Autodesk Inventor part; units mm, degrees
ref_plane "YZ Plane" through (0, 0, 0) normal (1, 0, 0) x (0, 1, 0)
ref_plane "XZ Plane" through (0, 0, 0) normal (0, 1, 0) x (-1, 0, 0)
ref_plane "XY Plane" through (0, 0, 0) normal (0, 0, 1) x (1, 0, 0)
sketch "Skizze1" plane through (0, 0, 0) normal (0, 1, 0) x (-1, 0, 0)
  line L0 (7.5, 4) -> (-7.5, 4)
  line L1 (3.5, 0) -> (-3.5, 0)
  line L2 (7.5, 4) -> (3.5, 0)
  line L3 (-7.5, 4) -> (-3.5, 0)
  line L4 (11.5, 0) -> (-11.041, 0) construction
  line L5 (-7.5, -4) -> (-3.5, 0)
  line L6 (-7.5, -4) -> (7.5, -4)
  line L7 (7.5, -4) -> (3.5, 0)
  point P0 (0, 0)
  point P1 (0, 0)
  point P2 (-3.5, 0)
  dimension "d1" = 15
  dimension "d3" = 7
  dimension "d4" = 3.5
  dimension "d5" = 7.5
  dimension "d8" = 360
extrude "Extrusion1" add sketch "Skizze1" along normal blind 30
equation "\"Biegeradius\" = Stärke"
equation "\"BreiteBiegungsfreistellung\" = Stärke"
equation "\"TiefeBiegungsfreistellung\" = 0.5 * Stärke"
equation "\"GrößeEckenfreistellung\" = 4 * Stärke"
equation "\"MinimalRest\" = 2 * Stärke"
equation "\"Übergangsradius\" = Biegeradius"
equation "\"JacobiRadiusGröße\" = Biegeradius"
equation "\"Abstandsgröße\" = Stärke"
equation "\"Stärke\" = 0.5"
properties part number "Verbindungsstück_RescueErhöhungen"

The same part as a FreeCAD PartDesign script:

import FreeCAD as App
import Part
import Sketcher

V = App.Vector

doc = App.newDocument("Part")
params = doc.addObject("Spreadsheet::Sheet", "Params")
for row, (alias, value) in enumerate([
    ("sketch1_width", "15 mm"),
    ("pad1_length", "30 mm"),
], start=1):
    params.set(f"A{row}", alias)
    params.set(f"B{row}", "=" + value)
    params.setAlias(f"B{row}", alias)

body = doc.addObject("PartDesign::Body", "Body")

sketch1 = doc.addObject("Sketcher::SketchObject", "Sketch")
body.addObject(sketch1)
sketch1.AttachmentSupport = (doc.XZ_Plane, [""])
sketch1.MapMode = "FlatFace"
sketch1.addGeometry([
    Part.LineSegment(V(-4, 0, 0), V(-8, 4, 0)),
    Part.LineSegment(V(-8, 4, 0), V(8, 4, 0)),
    Part.LineSegment(V(8, 4, 0), V(4, 0, 0)),
    Part.LineSegment(V(4, 0, 0), V(8, -4, 0)),
    Part.LineSegment(V(8, -4, 0), V(-8, -4, 0)),
    Part.LineSegment(V(-8, -4, 0), V(-4, 0, 0)),
], False)
sketch1.addConstraint([
    Sketcher.Constraint("Coincident", 0, 2, 1, 1),
    Sketcher.Constraint("Coincident", 1, 2, 2, 1),
    Sketcher.Constraint("Coincident", 2, 2, 3, 1),
    Sketcher.Constraint("Coincident", 3, 2, 4, 1),
    Sketcher.Constraint("Coincident", 4, 2, 5, 1),
    Sketcher.Constraint("Coincident", 5, 2, 0, 1),
    Sketcher.Constraint("Horizontal", 1),
    Sketcher.Constraint("Horizontal", 4),
    Sketcher.Constraint("Symmetric", 0, 2, 3, 2, -1, 1),
    Sketcher.Constraint("Symmetric", 2, 2, 5, 2, -1, 1),
    Sketcher.Constraint("PointOnObject", 2, 2, -1),
    Sketcher.Constraint("Perpendicular", 0, 2),
    Sketcher.Constraint("Perpendicular", 3, 5),
    Sketcher.Constraint("Vertical", 1, 2, 3, 2),
    Sketcher.Constraint("DistanceX", 1, 1, 1, 2, 15.0),
    Sketcher.Constraint("DistanceX", 5, 2, 2, 2, 7.0),
])
sketch1.setExpression("Constraints[14]", "Params.sketch1_width")
pad1 = doc.addObject("PartDesign::Pad", "Pad")
body.addObject(pad1)
pad1.Profile = sketch1
pad1.setExpression("Length", "Params.pad1_length")
pad1.Reversed = True

doc.recompute()
